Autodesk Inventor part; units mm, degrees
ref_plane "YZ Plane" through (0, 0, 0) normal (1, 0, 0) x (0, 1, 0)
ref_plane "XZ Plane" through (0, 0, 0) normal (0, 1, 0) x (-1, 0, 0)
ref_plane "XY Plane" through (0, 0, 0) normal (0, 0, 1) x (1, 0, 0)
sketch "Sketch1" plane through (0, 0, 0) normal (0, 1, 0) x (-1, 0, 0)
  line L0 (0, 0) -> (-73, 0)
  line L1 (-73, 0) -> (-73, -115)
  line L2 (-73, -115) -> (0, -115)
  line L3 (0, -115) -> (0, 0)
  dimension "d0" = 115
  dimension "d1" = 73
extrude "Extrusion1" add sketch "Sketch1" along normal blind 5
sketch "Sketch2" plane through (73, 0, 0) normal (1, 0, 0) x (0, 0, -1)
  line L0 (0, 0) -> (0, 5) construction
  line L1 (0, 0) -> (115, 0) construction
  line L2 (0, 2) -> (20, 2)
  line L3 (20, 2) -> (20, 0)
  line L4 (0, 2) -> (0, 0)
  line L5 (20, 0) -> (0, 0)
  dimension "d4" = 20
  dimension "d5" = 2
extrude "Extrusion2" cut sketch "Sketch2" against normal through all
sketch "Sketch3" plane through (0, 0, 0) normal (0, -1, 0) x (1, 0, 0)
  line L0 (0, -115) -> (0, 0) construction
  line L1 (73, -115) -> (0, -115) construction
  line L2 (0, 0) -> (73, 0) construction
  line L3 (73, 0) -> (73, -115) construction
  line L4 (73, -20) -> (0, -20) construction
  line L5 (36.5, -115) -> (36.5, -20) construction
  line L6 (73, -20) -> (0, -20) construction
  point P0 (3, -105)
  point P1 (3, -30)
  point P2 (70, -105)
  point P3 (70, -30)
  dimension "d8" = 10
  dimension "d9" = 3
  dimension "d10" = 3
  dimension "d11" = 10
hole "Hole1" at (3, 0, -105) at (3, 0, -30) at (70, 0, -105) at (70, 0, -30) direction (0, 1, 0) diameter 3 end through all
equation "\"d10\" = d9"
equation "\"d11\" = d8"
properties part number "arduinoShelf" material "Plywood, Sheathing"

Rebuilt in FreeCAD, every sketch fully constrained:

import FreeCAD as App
import Part
import Sketcher
from FreeCAD import Vector

doc = App.newDocument("Part")
body = doc.addObject("PartDesign::Body", "Body")

sketch1 = doc.addObject("Sketcher::SketchObject", "Sketch")
body.addObject(sketch1)
sketch1.AttachmentSupport = (doc.XZ_Plane, [""])
sketch1.MapMode = "FlatFace"
sketch1.addGeometry(Part.LineSegment(Vector(0, -115, 0), Vector(0, 0, 0)), False)
sketch1.addGeometry(Part.LineSegment(Vector(0, 0, 0), Vector(73, 0, 0)), False)
sketch1.addGeometry(Part.LineSegment(Vector(73, 0, 0), Vector(73, -115, 0)), False)
sketch1.addGeometry(Part.LineSegment(Vector(73, -115, 0), Vector(0, -115, 0)), False)
sketch1.addConstraint(Sketcher.Constraint("Coincident", 0, 2, 1, 1))
sketch1.addConstraint(Sketcher.Constraint("Coincident", 1, 2, 2, 1))
sketch1.addConstraint(Sketcher.Constraint("Coincident", 2, 2, 3, 1))
sketch1.addConstraint(Sketcher.Constraint("Coincident", 3, 2, 0, 1))
sketch1.addConstraint(Sketcher.Constraint("Vertical", 0))
sketch1.addConstraint(Sketcher.Constraint("Horizontal", 1))
sketch1.addConstraint(Sketcher.Constraint("Vertical", 2))
sketch1.addConstraint(Sketcher.Constraint("Horizontal", 3))
sketch1.addConstraint(Sketcher.Constraint("Coincident", 0, 2, -1, 1))
sketch1.addConstraint(Sketcher.Constraint("DistanceX", 1, 1, 1, 2, 73.0))
sketch1.addConstraint(Sketcher.Constraint("DistanceY", 0, 1, 0, 2, 115.0))
pad1 = doc.addObject("PartDesign::Pad", "Pad")
body.addObject(pad1)
pad1.Profile = sketch1
pad1.Length = 5
pad1.Reversed = True

sketch2 = doc.addObject("Sketcher::SketchObject", "Sketch001")
body.addObject(sketch2)
sketch2.AttachmentSupport = (doc.YZ_Plane, [""])
sketch2.MapMode = "FlatFace"
sketch2.AttachmentOffset = App.Placement(Vector(0, 0, 73), App.Rotation())
sketch2.addGeometry(Part.LineSegment(Vector(2, -20, 0), Vector(2, 0, 0)), False)
sketch2.addGeometry(Part.LineSegment(Vector(2, 0, 0), Vector(0, 0, 0)), False)
sketch2.addGeometry(Part.LineSegment(Vector(0, 0, 0), Vector(0, -20, 0)), False)
sketch2.addGeometry(Part.LineSegment(Vector(0, -20, 0), Vector(2, -20, 0)), False)
sketch2.addConstraint(Sketcher.Constraint("Coincident", 0, 2, 1, 1))
sketch2.addConstraint(Sketcher.Constraint("Coincident", 1, 2, 2, 1))
sketch2.addConstraint(Sketcher.Constraint("Coincident", 2, 2, 3, 1))
sketch2.addConstraint(Sketcher.Constraint("Coincident", 3, 2, 0, 1))
sketch2.addConstraint(Sketcher.Constraint("Vertical", 0))
sketch2.addConstraint(Sketcher.Constraint("Horizontal", 1))
sketch2.addConstraint(Sketcher.Constraint("Vertical", 2))
sketch2.addConstraint(Sketcher.Constraint("Horizontal", 3))
sketch2.addConstraint(Sketcher.Constraint("Coincident", 1, 2, -1, 1))
sketch2.addConstraint(Sketcher.Constraint("DistanceX", 1, 2, 1, 1, 2.0))
sketch2.addConstraint(Sketcher.Constraint("DistanceY", 0, 1, 0, 2, 20.0))
pocket1 = doc.addObject("PartDesign::Pocket", "Pocket")
body.addObject(pocket1)
pocket1.Profile = sketch2
pocket1.Type = "ThroughAll"

sketch3 = doc.addObject("Sketcher::SketchObject", "Sketch002")
body.addObject(sketch3)
sketch3.AttachmentSupport = (doc.XZ_Plane, [""])
sketch3.MapMode = "FlatFace"
sketch3.addGeometry(Part.Circle(Vector(3, -105, 0), Vector(0, 0, 1), 1.5), False)
sketch3.addGeometry(Part.Circle(Vector(3, -30, 0), Vector(0, 0, 1), 1.5), False)
sketch3.addGeometry(Part.Circle(Vector(70, -105, 0), Vector(0, 0, 1), 1.5), False)
sketch3.addGeometry(Part.Circle(Vector(70, -30, 0), Vector(0, 0, 1), 1.5), False)
sketch3.addConstraint(Sketcher.Constraint("Equal", 0, 1))
sketch3.addConstraint(Sketcher.Constraint("Equal", 1, 2))
sketch3.addConstraint(Sketcher.Constraint("Equal", 2, 3))
sketch3.addConstraint(Sketcher.Constraint("Horizontal", 0, 3, 2, 3))
sketch3.addConstraint(Sketcher.Constraint("Horizontal", 1, 3, 3, 3))
sketch3.addConstraint(Sketcher.Constraint("Vertical", 0, 3, 1, 3))
sketch3.addConstraint(Sketcher.Constraint("Vertical", 2, 3, 3, 3))
sketch3.addConstraint(Sketcher.Constraint("Diameter", 0, 3.0))
sketch3.addConstraint(Sketcher.Constraint("DistanceX", -1, 1, 0, 3, 3.0))
sketch3.addConstraint(Sketcher.Constraint("DistanceY", 0, 3, -1, 1, 105.0))
sketch3.addConstraint(Sketcher.Constraint("DistanceY", 1, 3, -1, 1, 30.0))
sketch3.addConstraint(Sketcher.Constraint("DistanceX", -1, 1, 2, 3, 70.0))
doc.recompute()
hole = doc.addObject("PartDesign::Hole", "Hole")
body.addObject(hole)
hole.Profile = sketch3
hole.ThreadType = "None"
hole.Diameter = 3
hole.DepthType = "ThroughAll"

doc.recompute()
